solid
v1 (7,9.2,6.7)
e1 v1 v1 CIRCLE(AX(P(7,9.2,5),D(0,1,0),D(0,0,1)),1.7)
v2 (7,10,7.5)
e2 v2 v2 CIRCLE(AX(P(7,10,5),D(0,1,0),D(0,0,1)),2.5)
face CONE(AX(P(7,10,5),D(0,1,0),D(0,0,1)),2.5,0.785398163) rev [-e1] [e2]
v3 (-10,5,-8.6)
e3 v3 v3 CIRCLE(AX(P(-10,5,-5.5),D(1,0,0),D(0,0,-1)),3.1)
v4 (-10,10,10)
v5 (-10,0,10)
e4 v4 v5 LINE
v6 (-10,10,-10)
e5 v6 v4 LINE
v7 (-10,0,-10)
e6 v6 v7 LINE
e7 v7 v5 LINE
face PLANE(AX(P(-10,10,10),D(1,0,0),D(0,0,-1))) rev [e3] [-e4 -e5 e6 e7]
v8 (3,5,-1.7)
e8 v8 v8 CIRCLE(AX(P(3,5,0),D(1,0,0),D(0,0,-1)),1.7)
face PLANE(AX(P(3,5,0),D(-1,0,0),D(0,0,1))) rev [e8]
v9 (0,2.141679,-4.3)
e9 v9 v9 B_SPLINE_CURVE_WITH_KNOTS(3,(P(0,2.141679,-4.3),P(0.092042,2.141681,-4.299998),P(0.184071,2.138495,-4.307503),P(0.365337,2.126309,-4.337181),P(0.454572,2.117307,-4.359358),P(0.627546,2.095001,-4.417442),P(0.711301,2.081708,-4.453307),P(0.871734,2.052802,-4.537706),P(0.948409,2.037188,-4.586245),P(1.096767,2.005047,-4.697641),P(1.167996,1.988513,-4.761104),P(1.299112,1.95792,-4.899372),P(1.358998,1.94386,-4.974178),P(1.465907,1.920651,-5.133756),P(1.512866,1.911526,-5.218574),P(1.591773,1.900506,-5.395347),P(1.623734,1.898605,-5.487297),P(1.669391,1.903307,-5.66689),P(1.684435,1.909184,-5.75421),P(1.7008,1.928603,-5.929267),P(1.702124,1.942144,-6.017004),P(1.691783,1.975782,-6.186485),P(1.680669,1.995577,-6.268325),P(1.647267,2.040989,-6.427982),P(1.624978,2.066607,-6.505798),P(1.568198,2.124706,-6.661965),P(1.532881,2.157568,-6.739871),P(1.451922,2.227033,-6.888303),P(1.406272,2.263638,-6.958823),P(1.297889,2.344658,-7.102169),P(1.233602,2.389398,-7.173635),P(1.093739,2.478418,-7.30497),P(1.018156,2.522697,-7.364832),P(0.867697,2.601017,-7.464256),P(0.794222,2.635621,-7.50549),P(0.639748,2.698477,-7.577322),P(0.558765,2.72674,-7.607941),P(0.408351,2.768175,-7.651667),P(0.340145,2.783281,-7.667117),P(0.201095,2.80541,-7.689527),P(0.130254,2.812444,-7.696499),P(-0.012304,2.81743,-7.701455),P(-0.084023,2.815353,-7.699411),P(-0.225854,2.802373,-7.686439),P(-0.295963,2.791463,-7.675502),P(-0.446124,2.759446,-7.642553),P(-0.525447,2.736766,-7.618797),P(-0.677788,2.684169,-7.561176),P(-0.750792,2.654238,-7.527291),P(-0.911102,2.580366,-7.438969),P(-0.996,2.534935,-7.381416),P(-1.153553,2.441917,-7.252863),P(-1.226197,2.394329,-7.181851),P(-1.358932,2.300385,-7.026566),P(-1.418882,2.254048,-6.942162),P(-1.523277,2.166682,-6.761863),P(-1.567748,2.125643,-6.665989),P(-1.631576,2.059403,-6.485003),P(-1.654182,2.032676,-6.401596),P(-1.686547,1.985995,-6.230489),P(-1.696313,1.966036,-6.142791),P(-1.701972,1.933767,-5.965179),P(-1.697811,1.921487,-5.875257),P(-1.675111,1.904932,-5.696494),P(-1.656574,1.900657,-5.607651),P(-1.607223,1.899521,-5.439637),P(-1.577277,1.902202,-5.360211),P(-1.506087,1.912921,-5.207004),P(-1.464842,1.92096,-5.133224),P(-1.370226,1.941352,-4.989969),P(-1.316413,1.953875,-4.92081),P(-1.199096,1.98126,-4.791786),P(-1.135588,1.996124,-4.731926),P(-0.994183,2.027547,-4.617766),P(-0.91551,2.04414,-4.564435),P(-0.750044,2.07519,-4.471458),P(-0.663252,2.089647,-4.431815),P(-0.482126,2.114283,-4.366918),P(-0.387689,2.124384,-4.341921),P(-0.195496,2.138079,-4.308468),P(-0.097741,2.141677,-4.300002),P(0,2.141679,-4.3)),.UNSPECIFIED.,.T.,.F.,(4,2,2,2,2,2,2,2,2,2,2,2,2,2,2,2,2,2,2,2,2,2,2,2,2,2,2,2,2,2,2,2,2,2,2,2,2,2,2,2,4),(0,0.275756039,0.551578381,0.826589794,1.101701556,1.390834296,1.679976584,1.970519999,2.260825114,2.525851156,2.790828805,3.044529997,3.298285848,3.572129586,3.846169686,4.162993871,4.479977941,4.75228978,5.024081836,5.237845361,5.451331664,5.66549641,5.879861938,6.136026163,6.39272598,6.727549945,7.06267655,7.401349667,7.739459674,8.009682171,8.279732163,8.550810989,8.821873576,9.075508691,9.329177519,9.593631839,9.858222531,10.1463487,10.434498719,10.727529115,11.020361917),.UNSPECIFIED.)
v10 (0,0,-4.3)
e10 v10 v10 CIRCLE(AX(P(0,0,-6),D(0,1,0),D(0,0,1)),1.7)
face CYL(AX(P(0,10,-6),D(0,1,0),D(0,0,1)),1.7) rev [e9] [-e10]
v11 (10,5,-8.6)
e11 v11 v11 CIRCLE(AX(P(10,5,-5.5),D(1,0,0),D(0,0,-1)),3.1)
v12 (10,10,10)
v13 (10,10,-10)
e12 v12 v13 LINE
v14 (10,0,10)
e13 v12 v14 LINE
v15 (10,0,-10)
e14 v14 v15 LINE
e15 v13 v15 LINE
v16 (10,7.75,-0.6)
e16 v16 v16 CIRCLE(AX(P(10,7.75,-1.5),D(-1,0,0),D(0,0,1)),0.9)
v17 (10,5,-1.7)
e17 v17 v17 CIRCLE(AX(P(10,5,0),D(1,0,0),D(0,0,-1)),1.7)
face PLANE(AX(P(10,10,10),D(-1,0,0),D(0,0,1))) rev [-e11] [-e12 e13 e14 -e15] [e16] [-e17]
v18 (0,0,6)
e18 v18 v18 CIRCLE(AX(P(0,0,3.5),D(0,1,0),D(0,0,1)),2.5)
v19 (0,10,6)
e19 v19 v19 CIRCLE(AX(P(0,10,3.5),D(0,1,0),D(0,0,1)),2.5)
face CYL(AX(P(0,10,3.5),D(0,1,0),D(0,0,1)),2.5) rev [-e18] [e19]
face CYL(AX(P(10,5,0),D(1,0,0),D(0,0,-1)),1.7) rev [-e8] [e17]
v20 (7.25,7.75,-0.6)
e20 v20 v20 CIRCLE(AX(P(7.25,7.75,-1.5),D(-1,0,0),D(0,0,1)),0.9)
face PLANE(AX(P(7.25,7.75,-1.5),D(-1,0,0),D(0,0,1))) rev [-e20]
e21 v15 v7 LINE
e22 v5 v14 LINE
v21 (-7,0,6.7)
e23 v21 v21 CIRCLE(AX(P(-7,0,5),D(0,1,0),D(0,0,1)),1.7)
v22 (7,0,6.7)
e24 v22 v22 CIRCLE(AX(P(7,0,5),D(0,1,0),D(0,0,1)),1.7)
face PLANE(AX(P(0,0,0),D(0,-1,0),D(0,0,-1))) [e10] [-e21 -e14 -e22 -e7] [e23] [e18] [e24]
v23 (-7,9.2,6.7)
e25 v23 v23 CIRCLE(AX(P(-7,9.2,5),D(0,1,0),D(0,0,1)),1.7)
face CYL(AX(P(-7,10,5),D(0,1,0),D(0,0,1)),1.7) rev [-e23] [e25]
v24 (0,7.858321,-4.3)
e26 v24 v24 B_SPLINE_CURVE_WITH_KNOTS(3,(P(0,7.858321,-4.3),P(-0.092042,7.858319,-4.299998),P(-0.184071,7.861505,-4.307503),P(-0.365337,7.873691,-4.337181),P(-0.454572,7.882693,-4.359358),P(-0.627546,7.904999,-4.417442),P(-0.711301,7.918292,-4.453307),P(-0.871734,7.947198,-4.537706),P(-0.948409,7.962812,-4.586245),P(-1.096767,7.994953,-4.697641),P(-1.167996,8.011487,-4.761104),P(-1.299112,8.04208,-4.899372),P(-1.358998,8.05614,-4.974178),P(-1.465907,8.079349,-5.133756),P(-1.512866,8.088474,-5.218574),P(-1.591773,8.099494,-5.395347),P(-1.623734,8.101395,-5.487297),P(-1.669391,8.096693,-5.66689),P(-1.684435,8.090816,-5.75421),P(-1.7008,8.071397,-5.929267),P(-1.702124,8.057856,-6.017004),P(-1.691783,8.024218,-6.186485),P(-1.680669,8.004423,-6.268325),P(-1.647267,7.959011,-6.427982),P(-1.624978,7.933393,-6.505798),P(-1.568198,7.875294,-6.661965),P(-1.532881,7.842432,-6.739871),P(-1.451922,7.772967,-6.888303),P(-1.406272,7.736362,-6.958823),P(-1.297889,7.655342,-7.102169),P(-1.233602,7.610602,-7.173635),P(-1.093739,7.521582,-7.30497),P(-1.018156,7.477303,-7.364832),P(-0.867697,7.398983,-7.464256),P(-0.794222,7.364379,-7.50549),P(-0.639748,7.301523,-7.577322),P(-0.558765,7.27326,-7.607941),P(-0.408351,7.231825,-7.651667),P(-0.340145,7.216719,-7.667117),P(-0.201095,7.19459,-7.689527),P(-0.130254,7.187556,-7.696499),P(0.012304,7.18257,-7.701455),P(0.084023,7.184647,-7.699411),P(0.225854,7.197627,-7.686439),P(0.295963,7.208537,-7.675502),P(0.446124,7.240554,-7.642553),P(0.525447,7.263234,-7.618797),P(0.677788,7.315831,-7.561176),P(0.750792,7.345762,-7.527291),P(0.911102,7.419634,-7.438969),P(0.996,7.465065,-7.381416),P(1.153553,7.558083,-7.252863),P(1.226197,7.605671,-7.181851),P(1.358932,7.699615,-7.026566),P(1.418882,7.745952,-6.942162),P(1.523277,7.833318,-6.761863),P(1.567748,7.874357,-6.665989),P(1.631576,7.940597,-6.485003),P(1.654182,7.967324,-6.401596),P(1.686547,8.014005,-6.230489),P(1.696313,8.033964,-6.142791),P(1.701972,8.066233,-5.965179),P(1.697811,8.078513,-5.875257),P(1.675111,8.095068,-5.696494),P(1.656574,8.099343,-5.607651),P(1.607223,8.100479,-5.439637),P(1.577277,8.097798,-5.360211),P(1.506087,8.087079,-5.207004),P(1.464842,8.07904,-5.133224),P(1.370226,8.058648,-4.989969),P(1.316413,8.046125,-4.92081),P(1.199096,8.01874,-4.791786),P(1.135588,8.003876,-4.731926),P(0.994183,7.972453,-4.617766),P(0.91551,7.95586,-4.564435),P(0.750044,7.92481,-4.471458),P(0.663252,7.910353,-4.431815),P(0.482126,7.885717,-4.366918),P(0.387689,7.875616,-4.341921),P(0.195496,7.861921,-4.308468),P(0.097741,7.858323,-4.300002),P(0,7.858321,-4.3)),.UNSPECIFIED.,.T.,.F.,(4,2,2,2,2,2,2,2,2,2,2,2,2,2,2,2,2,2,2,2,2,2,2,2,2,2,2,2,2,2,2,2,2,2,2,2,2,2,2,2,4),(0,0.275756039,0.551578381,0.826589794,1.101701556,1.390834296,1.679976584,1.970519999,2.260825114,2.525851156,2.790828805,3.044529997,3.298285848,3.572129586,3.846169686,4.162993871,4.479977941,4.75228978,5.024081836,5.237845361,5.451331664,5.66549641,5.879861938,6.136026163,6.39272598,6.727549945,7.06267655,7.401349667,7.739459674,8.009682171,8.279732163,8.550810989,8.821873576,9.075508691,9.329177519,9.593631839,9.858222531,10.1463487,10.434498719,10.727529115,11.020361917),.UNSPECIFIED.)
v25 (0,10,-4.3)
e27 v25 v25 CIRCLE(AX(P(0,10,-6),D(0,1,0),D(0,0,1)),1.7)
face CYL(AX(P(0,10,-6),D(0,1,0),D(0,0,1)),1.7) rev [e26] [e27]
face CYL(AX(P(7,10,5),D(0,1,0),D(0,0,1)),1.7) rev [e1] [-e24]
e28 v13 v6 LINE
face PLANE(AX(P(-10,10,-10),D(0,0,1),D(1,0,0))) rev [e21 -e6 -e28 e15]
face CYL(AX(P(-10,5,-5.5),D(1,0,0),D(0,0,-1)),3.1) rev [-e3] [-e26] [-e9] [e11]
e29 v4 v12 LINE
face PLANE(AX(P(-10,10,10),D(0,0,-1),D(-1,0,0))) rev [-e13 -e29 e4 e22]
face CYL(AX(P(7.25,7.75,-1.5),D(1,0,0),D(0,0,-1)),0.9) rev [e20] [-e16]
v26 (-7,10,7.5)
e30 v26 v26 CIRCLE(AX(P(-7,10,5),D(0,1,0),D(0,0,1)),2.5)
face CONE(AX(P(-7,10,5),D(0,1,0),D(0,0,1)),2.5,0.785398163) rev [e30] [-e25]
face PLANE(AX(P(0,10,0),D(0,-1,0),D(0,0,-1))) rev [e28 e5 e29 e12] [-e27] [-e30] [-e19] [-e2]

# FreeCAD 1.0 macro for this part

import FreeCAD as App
import Part
import Sketcher

V = App.Vector

doc = App.newDocument("Part")
params = doc.addObject("Spreadsheet::Sheet", "Params")
for row, (alias, value) in enumerate([
    ("sketch1_width", "20 mm"),
    ("pad1_length", "10 mm"),
    ("sketch2_diameter", "5 mm"),
    ("hole_diameter", "5 mm"),
    ("sketch3_diameter", "3.4 mm"),
    ("hole2_diameter", "3.4 mm"),
    ("hole2_csink_diameter", "5 mm"),
    ("sketch4_diameter", "3.4 mm"),
    ("hole3_diameter", "3.4 mm"),
    ("sketch5_diameter", "6.2 mm"),
    ("pocket1_length", "20 mm"),
    ("sketch6_diameter", "3.4 mm"),
    ("hole4_diameter", "3.4 mm"),
    ("hole4_depth", "7 mm"),
    ("sketch7_diameter", "1.8 mm"),
    ("pocket2_length", "2.75 mm"),
], start=1):
    params.set(f"A{row}", alias)
    params.set(f"B{row}", "=" + value)
    params.setAlias(f"B{row}", alias)

body = doc.addObject("PartDesign::Body", "Body")

sketch1 = body.newObject("Sketcher::SketchObject", "Sketch")
sketch1.AttachmentSupport = (doc.getObject("XZ_Plane"), [""])
sketch1.MapMode = "FlatFace"
sketch1.addGeometry(Part.LineSegment(V(-10, -10, 0), V(-10, 10, 0)), False)
sketch1.addGeometry(Part.LineSegment(V(-10, 10, 0), V(10, 10, 0)), False)
sketch1.addGeometry(Part.LineSegment(V(10, 10, 0), V(10, -10, 0)), False)
sketch1.addGeometry(Part.LineSegment(V(10, -10, 0), V(-10, -10, 0)), False)
sketch1.addConstraint(Sketcher.Constraint("Coincident", 0, 2, 1, 1))
sketch1.addConstraint(Sketcher.Constraint("Coincident", 1, 2, 2, 1))
sketch1.addConstraint(Sketcher.Constraint("Coincident", 2, 2, 3, 1))
sketch1.addConstraint(Sketcher.Constraint("Coincident", 3, 2, 0, 1))
sketch1.addConstraint(Sketcher.Constraint("Vertical", 0))
sketch1.addConstraint(Sketcher.Constraint("Horizontal", 1))
sketch1.addConstraint(Sketcher.Constraint("Vertical", 2))
sketch1.addConstraint(Sketcher.Constraint("Horizontal", 3))
sketch1.addConstraint(Sketcher.Constraint("Symmetric", 0, 2, 2, 2, -1, 1))
sketch1.addConstraint(Sketcher.Constraint("Equal", 3, 0))
sketch1.addConstraint(Sketcher.Constraint("DistanceX", 1, 1, 1, 2, 20.0))
sketch1.setExpression("Constraints[10]", "Params.sketch1_width")
pad1 = body.newObject("PartDesign::Pad", "Pad")
pad1.Profile = sketch1
pad1.setExpression("Length", "Params.pad1_length")
pad1.Reversed = True

sketch2 = body.newObject("Sketcher::SketchObject", "Sketch001")
sketch2.AttachmentSupport = (doc.getObject("XZ_Plane"), [""])
sketch2.MapMode = "FlatFace"
sketch2.AttachmentOffset = App.Placement(V(0, 0, -10), App.Rotation())
sketch2.addGeometry(Part.Circle(V(0, 3.5, 0), V(0, 0, 1), 2.5), False)
sketch2.addConstraint(Sketcher.Constraint("PointOnObject", 0, 3, -2))
sketch2.addConstraint(Sketcher.Constraint("Diameter", 0, 5.0))
sketch2.addConstraint(Sketcher.Constraint("DistanceY", -1, 1, 0, 3, 3.5))
sketch2.setExpression("Constraints[1]", "Params.sketch2_diameter")
doc.recompute()
hole = body.newObject("PartDesign::Hole", "Hole")
hole.Profile = sketch2
hole.ThreadType = "None"
hole.setExpression("Diameter", "Params.hole_diameter")
hole.DepthType = "ThroughAll"
hole.Reversed = True

sketch3 = body.newObject("Sketcher::SketchObject", "Sketch002")
sketch3.AttachmentSupport = (doc.getObject("XZ_Plane"), [""])
sketch3.MapMode = "FlatFace"
sketch3.AttachmentOffset = App.Placement(V(0, 0, -10), App.Rotation())
sketch3.addGeometry(Part.Circle(V(-7, 5, 0), V(0, 0, 1), 1.7), False)
sketch3.addGeometry(Part.Circle(V(7, 5, 0), V(0, 0, 1), 1.7), False)
sketch3.addConstraint(Sketcher.Constraint("Equal", 0, 1))
sketch3.addConstraint(Sketcher.Constraint("Symmetric", 0, 3, 1, 3, -2))
sketch3.addConstraint(Sketcher.Constraint("Diameter", 0, 3.4))
sketch3.addConstraint(Sketcher.Constraint("DistanceX", 0, 3, -1, 1, 7.0))
sketch3.addConstraint(Sketcher.Constraint("DistanceY", -1, 1, 0, 3, 5.0))
sketch3.setExpression("Constraints[2]", "Params.sketch3_diameter")
doc.recompute()
hole2 = body.newObject("PartDesign::Hole", "Hole001")
hole2.Profile = sketch3
hole2.ThreadType = "None"
hole2.setExpression("Diameter", "Params.hole2_diameter")
hole2.DepthType = "ThroughAll"
hole2.HoleCutType = "Countersink"
hole2.setExpression("HoleCutDiameter", "Params.hole2_csink_diameter")
hole2.HoleCutCountersinkAngle = 90
hole2.Reversed = True

sketch4 = body.newObject("Sketcher::SketchObject", "Sketch003")
sketch4.AttachmentSupport = (doc.getObject("XZ_Plane"), [""])
sketch4.MapMode = "FlatFace"
sketch4.AttachmentOffset = App.Placement(V(0, 0, -10), App.Rotation())
sketch4.addGeometry(Part.Circle(V(0, -6, 0), V(0, 0, 1), 1.7), False)
sketch4.addConstraint(Sketcher.Constraint("PointOnObject", 0, 3, -2))
sketch4.addConstraint(Sketcher.Constraint("Diameter", 0, 3.4))
sketch4.addConstraint(Sketcher.Constraint("DistanceY", 0, 3, -1, 1, 6.0))
sketch4.setExpression("Constraints[1]", "Params.sketch4_diameter")
doc.recompute()
hole3 = body.newObject("PartDesign::Hole", "Hole002")
hole3.Profile = sketch4
hole3.ThreadType = "None"
hole3.setExpression("Diameter", "Params.hole3_diameter")
hole3.DepthType = "ThroughAll"
hole3.Reversed = True

sketch5 = body.newObject("Sketcher::SketchObject", "Sketch004")
sketch5.AttachmentSupport = (doc.getObject("YZ_Plane"), [""])
sketch5.MapMode = "FlatFace"
sketch5.AttachmentOffset = App.Placement(V(0, 0, 10), App.Rotation())
sketch5.addGeometry(Part.Circle(V(5, -5.5, 0), V(0, 0, 1), 3.1), False)
sketch5.addConstraint(Sketcher.Constraint("Diameter", 0, 6.2))
sketch5.addConstraint(Sketcher.Constraint("DistanceX", -1, 1, 0, 3, 5.0))
sketch5.addConstraint(Sketcher.Constraint("DistanceY", 0, 3, -1, 1, 5.5))
sketch5.setExpression("Constraints[0]", "Params.sketch5_diameter")
pocket1 = body.newObject("PartDesign::Pocket", "Pocket")
pocket1.Profile = sketch5
pocket1.setExpression("Length", "Params.pocket1_length")

sketch6 = body.newObject("Sketcher::SketchObject", "Sketch005")
sketch6.AttachmentSupport = (doc.getObject("YZ_Plane"), [""])
sketch6.MapMode = "FlatFace"
sketch6.AttachmentOffset = App.Placement(V(0, 0, 10), App.Rotation())
sketch6.addGeometry(Part.Circle(V(5, 0, 0), V(0, 0, 1), 1.7), False)
sketch6.addConstraint(Sketcher.Constraint("PointOnObject", 0, 3, -1))
sketch6.addConstraint(Sketcher.Constraint("Diameter", 0, 3.4))
sketch6.addConstraint(Sketcher.Constraint("DistanceX", -1, 1, 0, 3, 5.0))
sketch6.setExpression("Constraints[1]", "Params.sketch6_diameter")
doc.recompute()
hole4 = body.newObject("PartDesign::Hole", "Hole003")
hole4.Profile = sketch6
hole4.ThreadType = "None"
hole4.setExpression("Diameter", "Params.hole4_diameter")
hole4.DepthType = "Dimension"
hole4.setExpression("Depth", "Params.hole4_depth")
hole4.DrillPoint = "Flat"

sketch7 = body.newObject("Sketcher::SketchObject", "Sketch006")
sketch7.AttachmentSupport = (doc.getObject("YZ_Plane"), [""])
sketch7.MapMode = "FlatFace"
sketch7.AttachmentOffset = App.Placement(V(0, 0, 10), App.Rotation())
sketch7.addGeometry(Part.Circle(V(7.8, -1.5, 0), V(0, 0, 1), 0.9), False)
sketch7.addConstraint(Sketcher.Constraint("Diameter", 0, 1.8))
sketch7.addConstraint(Sketcher.Constraint("DistanceY", 0, 3, -1, 1, 1.5))
sketch7.addConstraint(Sketcher.Constraint("DistanceX", -1, 1, 0, 3, 7.75))
sketch7.setExpression("Constraints[0]", "Params.sketch7_diameter")
pocket2 = body.newObject("PartDesign::Pocket", "Pocket001")
pocket2.Profile = sketch7
pocket2.setExpression("Length", "Params.pocket2_length")

doc.recompute()
